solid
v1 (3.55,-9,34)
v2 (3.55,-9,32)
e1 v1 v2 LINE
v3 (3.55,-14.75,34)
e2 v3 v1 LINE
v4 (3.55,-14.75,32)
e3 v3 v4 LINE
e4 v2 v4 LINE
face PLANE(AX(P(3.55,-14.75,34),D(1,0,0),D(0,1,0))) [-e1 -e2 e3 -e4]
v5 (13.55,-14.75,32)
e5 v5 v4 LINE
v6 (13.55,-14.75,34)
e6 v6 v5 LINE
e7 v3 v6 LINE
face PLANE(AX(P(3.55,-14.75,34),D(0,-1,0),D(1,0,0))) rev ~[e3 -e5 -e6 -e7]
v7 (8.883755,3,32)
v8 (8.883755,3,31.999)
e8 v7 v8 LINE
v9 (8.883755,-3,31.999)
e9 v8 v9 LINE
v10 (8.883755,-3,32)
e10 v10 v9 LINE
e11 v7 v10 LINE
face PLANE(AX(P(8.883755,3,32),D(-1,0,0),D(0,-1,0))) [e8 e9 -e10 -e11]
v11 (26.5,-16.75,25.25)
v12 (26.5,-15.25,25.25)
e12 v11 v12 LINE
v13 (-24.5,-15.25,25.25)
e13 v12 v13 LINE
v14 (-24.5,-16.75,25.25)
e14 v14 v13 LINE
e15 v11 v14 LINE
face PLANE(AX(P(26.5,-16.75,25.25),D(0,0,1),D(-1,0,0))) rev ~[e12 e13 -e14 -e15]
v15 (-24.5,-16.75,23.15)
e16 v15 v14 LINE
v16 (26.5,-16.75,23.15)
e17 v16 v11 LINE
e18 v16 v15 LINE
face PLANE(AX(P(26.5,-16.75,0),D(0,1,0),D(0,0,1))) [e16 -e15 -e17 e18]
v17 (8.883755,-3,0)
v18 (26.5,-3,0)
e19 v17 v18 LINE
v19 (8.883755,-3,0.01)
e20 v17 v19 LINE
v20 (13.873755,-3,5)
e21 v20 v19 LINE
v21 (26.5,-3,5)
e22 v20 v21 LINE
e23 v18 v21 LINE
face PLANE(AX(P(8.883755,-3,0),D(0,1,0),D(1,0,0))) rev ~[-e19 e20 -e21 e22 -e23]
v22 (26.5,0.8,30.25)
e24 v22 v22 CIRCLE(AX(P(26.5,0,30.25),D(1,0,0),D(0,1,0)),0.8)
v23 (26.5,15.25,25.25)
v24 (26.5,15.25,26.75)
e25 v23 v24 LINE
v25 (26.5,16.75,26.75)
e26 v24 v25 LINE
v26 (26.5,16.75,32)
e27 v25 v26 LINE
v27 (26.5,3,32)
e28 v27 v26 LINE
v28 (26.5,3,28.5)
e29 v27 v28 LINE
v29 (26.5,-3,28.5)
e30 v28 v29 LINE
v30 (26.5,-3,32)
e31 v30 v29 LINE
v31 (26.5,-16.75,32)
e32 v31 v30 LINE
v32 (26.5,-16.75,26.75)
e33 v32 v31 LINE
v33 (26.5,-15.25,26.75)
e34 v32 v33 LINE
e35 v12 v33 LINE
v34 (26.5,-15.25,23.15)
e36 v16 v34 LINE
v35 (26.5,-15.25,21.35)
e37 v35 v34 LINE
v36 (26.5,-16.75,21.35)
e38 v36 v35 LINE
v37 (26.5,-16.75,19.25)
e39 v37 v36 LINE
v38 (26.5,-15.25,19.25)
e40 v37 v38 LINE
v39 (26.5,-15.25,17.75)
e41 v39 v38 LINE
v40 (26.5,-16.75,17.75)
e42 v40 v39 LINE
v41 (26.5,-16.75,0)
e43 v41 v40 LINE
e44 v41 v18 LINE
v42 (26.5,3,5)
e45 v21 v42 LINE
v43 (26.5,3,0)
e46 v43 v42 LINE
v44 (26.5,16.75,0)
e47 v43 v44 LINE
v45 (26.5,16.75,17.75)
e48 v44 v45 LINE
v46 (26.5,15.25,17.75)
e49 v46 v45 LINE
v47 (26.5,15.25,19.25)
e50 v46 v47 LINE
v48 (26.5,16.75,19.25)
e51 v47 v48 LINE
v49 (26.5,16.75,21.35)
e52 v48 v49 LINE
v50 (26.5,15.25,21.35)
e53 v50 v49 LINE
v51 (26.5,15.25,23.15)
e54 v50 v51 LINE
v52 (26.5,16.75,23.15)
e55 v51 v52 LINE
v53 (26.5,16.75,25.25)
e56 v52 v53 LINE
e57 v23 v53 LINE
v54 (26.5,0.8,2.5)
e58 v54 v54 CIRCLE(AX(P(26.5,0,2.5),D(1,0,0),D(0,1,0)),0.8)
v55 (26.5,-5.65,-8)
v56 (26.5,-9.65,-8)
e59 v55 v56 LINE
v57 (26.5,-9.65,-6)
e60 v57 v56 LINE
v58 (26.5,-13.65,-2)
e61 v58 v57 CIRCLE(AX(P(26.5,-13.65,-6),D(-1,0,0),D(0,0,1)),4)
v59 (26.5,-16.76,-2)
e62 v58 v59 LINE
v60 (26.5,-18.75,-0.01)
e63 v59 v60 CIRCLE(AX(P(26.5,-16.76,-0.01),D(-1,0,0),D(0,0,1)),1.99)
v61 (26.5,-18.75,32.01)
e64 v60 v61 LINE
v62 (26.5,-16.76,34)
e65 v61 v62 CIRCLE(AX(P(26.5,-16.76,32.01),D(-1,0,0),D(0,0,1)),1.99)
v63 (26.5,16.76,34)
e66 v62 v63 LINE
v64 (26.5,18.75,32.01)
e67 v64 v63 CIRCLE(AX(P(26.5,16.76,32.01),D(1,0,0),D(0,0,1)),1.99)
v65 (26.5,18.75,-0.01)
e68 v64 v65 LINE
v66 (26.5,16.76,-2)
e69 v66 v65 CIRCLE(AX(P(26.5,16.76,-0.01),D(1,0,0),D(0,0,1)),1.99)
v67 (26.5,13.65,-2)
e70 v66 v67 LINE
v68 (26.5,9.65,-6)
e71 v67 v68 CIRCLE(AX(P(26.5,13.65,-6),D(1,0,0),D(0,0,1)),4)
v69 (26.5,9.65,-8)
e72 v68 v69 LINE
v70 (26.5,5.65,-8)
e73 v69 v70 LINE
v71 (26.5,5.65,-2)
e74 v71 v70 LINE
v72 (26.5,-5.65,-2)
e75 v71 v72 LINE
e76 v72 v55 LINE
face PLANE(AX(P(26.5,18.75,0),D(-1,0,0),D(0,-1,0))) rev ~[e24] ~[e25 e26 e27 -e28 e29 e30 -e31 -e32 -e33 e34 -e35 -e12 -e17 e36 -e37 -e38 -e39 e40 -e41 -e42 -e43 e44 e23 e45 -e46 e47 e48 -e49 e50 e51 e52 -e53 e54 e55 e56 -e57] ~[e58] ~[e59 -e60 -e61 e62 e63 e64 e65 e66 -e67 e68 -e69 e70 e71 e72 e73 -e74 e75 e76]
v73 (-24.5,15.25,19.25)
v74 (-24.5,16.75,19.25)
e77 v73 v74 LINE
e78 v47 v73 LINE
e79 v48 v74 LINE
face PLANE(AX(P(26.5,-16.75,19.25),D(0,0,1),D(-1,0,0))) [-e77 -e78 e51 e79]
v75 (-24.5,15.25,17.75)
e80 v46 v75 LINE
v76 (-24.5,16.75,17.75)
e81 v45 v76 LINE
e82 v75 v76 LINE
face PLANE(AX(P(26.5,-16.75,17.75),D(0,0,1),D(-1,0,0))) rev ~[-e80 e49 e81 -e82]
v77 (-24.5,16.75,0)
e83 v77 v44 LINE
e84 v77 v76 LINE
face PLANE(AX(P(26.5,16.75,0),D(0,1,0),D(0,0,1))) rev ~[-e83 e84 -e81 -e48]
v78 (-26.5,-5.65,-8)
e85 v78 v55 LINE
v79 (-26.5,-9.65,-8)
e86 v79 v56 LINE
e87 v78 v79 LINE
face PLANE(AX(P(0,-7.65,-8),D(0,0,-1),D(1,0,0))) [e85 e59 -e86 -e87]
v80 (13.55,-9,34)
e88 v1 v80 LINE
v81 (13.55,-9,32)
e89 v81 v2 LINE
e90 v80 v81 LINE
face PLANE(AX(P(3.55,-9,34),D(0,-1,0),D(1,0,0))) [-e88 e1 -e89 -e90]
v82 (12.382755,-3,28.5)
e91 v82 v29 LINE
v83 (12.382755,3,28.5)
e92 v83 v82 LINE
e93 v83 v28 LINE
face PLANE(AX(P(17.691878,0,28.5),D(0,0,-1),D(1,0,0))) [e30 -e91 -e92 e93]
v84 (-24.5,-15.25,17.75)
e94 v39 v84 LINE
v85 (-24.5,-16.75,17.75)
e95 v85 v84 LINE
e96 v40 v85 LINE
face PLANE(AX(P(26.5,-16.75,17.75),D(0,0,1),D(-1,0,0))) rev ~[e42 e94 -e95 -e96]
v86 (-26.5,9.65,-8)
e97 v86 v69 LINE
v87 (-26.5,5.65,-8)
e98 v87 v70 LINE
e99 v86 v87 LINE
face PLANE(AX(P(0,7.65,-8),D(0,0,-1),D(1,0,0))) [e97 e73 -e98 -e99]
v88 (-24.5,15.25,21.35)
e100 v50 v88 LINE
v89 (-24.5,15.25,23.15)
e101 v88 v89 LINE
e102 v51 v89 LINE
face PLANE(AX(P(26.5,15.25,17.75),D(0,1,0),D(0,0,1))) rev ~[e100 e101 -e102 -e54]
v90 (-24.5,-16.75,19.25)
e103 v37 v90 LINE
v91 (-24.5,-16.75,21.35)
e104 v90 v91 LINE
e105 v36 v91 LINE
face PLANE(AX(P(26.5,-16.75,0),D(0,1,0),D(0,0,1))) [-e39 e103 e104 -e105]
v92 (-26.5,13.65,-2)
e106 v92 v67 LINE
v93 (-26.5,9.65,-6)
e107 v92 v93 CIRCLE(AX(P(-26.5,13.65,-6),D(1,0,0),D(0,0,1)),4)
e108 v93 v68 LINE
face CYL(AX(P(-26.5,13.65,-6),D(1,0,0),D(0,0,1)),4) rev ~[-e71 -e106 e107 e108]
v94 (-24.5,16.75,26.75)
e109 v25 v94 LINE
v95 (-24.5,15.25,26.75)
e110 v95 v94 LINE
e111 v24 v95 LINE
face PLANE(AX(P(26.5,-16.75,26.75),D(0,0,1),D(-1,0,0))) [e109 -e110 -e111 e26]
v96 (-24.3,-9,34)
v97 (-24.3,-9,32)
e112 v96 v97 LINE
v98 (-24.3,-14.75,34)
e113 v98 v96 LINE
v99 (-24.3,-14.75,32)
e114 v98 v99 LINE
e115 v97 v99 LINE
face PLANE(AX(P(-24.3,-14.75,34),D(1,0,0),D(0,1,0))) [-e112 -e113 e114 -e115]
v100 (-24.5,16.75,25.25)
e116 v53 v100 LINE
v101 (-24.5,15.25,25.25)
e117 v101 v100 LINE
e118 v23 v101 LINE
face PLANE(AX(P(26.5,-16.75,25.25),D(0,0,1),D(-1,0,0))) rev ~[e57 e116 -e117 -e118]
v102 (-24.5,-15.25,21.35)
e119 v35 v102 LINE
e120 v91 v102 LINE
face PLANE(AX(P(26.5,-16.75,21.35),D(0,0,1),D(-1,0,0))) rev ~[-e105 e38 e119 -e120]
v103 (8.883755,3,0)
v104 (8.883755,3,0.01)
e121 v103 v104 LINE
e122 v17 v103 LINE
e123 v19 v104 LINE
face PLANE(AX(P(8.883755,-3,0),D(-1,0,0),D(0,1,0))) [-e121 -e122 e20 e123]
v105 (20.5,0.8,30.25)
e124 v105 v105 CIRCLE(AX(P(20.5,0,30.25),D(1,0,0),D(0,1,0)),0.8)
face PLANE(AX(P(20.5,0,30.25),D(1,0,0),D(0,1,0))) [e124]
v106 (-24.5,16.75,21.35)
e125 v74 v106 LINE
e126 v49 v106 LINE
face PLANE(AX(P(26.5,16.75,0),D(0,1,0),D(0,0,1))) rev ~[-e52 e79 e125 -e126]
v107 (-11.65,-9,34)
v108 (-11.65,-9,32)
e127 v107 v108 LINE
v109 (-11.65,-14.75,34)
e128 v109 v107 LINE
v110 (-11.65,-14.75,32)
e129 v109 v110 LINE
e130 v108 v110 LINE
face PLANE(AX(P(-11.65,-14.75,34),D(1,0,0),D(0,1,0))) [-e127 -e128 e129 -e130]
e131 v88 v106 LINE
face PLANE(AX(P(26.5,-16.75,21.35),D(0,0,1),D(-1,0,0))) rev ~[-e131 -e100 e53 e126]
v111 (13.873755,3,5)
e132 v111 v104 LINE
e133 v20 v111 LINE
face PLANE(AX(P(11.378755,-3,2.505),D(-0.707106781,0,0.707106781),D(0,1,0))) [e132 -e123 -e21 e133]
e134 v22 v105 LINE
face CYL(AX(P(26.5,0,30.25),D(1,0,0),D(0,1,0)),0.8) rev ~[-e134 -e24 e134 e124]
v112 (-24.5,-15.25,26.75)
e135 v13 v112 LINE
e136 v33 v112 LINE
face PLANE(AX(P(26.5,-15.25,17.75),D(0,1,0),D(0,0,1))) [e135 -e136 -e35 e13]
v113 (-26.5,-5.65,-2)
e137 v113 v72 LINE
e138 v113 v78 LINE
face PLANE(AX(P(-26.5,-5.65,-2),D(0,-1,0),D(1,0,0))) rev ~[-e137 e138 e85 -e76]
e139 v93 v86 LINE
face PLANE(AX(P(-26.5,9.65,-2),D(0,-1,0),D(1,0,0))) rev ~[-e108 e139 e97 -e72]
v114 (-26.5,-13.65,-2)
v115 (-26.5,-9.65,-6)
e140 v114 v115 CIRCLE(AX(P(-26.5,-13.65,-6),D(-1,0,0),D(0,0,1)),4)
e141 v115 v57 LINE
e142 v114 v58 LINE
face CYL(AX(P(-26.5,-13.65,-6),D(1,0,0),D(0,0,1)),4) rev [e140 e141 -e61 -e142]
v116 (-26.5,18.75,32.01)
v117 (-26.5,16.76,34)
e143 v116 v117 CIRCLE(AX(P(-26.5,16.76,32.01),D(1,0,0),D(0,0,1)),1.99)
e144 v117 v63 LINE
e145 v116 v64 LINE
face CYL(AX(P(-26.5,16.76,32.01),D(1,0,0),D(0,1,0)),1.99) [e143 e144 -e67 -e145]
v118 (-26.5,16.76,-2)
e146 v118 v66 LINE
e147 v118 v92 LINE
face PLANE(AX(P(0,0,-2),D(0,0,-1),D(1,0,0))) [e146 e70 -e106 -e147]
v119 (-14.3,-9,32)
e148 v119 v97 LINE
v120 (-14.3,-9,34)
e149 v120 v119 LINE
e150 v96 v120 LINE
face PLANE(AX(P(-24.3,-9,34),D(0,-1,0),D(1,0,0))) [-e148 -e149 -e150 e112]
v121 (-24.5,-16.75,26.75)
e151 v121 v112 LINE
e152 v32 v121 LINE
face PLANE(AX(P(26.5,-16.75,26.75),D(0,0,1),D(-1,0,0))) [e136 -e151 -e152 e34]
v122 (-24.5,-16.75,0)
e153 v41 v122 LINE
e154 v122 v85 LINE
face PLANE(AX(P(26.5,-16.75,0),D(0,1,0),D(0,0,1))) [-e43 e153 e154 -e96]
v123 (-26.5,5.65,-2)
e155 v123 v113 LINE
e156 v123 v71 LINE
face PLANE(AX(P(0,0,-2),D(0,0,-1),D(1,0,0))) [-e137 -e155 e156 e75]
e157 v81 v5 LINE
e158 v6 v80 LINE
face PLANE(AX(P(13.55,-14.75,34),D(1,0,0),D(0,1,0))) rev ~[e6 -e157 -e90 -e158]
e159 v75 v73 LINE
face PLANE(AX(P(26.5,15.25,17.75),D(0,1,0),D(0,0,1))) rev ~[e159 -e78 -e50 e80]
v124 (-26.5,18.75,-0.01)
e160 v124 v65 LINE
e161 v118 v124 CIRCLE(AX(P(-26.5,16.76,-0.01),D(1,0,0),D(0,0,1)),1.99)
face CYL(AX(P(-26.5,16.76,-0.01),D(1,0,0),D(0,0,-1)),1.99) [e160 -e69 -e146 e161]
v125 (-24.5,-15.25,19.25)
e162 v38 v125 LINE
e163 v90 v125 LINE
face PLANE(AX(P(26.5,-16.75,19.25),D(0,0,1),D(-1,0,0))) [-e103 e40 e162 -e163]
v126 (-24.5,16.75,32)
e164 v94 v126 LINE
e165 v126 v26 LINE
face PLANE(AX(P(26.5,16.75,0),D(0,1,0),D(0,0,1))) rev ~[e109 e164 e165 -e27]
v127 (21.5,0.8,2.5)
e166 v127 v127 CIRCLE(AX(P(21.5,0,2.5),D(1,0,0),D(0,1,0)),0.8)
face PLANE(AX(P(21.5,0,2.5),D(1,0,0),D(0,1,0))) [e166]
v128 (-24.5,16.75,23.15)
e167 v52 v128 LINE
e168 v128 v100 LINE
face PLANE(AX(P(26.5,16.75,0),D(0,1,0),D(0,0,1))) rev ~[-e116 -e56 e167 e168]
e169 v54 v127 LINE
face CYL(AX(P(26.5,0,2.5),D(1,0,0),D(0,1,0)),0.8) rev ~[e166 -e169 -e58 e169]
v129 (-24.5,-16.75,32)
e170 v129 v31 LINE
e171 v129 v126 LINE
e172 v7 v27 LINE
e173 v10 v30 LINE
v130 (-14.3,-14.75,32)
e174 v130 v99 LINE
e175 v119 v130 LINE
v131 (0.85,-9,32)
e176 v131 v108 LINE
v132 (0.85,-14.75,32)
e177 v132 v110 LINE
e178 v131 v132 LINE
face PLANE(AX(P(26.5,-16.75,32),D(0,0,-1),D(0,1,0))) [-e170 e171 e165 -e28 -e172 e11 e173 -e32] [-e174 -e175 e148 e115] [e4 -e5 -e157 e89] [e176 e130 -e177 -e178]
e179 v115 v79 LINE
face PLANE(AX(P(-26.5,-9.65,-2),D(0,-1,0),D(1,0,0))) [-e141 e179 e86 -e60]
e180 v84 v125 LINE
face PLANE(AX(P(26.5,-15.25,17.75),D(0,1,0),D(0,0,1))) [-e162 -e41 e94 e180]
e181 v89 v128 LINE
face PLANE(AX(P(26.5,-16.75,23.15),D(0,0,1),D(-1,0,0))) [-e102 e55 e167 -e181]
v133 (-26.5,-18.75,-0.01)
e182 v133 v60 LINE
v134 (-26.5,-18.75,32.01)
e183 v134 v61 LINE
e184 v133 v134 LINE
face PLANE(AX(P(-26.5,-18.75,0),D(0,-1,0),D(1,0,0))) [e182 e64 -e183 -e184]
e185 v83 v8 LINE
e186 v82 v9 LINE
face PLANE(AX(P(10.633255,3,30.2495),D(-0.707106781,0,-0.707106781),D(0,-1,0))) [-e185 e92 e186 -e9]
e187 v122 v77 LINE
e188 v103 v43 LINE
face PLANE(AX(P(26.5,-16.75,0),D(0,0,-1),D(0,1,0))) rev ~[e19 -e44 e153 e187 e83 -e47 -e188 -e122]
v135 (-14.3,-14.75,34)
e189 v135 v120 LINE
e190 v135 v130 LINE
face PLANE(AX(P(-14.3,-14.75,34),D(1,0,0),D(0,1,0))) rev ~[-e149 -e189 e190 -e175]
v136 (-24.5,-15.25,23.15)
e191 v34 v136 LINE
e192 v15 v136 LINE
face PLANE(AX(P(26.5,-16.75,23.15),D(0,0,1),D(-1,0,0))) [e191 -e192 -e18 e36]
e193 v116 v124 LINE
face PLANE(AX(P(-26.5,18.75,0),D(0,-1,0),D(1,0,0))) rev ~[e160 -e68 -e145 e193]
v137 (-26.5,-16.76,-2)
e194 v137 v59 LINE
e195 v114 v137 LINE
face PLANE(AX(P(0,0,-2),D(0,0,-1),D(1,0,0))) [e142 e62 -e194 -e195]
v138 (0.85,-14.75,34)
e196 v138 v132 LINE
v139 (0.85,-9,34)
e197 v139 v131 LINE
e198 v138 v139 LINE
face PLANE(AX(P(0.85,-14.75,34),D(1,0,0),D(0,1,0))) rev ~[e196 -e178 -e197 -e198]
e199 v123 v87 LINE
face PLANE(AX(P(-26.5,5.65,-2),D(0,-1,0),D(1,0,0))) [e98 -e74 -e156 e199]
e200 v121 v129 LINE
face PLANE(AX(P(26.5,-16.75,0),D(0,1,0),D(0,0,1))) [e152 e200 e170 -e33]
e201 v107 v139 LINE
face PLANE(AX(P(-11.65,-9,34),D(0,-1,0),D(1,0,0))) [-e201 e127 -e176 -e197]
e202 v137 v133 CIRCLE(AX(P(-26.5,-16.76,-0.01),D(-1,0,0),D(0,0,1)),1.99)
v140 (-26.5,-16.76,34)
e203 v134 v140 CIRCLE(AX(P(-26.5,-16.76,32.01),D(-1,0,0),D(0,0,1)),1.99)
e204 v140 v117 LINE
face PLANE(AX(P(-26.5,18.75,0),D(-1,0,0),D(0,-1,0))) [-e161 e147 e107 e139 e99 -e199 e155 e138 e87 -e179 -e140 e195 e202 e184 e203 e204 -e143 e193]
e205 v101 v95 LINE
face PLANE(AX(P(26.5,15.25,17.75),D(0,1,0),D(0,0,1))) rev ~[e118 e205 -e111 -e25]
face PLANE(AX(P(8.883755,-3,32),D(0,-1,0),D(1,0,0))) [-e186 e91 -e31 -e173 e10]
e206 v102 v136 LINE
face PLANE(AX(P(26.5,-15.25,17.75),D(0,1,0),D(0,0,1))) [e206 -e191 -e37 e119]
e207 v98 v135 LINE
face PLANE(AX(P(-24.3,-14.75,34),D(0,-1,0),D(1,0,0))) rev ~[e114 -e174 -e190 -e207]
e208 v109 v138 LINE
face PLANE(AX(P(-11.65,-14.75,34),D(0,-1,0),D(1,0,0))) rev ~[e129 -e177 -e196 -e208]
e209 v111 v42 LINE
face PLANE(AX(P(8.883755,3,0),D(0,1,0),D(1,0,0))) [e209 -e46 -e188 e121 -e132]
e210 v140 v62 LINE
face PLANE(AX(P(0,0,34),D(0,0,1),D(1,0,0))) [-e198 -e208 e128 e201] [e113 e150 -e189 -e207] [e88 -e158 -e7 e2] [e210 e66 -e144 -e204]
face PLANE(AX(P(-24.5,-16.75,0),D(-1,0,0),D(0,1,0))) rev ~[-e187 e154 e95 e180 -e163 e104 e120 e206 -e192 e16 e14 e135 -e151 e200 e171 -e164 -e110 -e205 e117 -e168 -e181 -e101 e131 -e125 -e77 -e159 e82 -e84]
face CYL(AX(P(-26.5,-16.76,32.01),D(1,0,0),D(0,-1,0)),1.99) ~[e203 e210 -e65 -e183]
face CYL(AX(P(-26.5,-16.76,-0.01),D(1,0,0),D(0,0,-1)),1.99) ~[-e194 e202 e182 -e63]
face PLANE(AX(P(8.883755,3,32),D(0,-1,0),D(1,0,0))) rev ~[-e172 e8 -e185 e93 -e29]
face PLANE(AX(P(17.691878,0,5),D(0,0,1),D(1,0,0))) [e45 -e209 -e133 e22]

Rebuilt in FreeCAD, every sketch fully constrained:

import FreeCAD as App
import Part
import Sketcher
from FreeCAD import Vector
Q = App.Units.Quantity


def edges_at(feature, points):
    """Names of the edges that pass closest to the given points."""
    edges = feature.Shape.Edges
    near = lambda p: min(range(len(edges)), key=lambda i: edges[i].distToShape(Part.Vertex(*p))[0])
    return sorted({f"Edge{near(p) + 1}" for p in points})

doc = App.newDocument("Part")
params = doc.addObject("Spreadsheet::Sheet", "Params")
for row, (alias, value) in enumerate([
    ("sketch1_width", "53 mm"),
    ("sketch1_width2", "49 mm"),
    ("sketch1_height", "37.5 mm"),
    ("sketch1_height2", "33.5 mm"),
    ("pad1_length", "32 mm"),
    ("sketch2_width", "53 mm"),
    ("sketch2_height", "37.5 mm"),
    ("pad2_length", "2 mm"),
    ("sketch3_width", "53 mm"),
    ("sketch3_height", "37.5 mm"),
    ("pad3_length", "2 mm"),
    ("sketch4_height", "32 mm"),
    ("sketch4_width", "33.5 mm"),
    ("pocket1_length", "2 mm"),
    ("sketch5_width", "10 mm"),
    ("sketch5_width2", "12.5 mm"),
    ("sketch5_height", "5.75 mm"),
    ("pocket2_length", "5 mm"),
    ("sketch6_width", "51 mm"),
    ("sketch6_height", "1.8 mm"),
    ("sketch6_height2", "1.5 mm"),
    ("pad4_length", "33.5 mm"),
    ("sketch7_height", "9 mm"),
    ("sketch7_width", "30.5 mm"),
    ("pocket3_length", "51 mm"),
    ("sketch8_height", "6 mm"),
    ("pad5_length", "5 mm"),
    ("sketch9_diameter", "1.6 mm"),
    ("pocket4_length", "5 mm"),
    ("sketch10_height", "6 mm"),
    ("pad6_length", "3.5 mm"),
    ("sketch11_diameter", "1.6 mm"),
    ("pocket5_length", "6 mm"),
    ("chamfer_size", "3.499 mm"),
    ("chamfer2_size", "4.99 mm"),
    ("fillet_radius", "1.99 mm"),
    ("sketch12_width", "53 mm"),
    ("sketch12_height", "4 mm"),
    ("pad7_length", "6 mm"),
    ("fillet2_radius", "4 mm"),
], start=1):
    params.set(f"A{row}", alias)
    params.set(f"B{row}", "=" + value)
    params.setAlias(f"B{row}", alias)

body = doc.addObject("PartDesign::Body", "Body")

# Sketch on XY plane
sketch1 = body.newObject("Sketcher::SketchObject", "Sketch")
sketch1.AttachmentSupport = (doc.getObject("XY_Plane"), [""])
sketch1.MapMode = "FlatFace"
sketch1.addGeometry([
    Part.LineSegment(Vector(-26, 19, 0), Vector(-26, -19, 0)),  # 0
    Part.LineSegment(Vector(-26, -19, 0), Vector(26, -19, 0)),  # 1
    Part.LineSegment(Vector(26, -19, 0), Vector(26, 19, 0)),  # 2
    Part.LineSegment(Vector(26, 19, 0), Vector(-26, 19, 0)),  # 3
    Part.LineSegment(Vector(24, -17, 0), Vector(-24, -17, 0)),  # 4
    Part.LineSegment(Vector(-24, -17, 0), Vector(-24, 17, 0)),  # 5
    Part.LineSegment(Vector(-24, 17, 0), Vector(24, 17, 0)),  # 6
    Part.LineSegment(Vector(24, 17, 0), Vector(24, -17, 0)),  # 7
], False)
sketch1.addConstraint([
    Sketcher.Constraint("Coincident", 0, 2, 1, 1),
    Sketcher.Constraint("Coincident", 1, 2, 2, 1),
    Sketcher.Constraint("Coincident", 2, 2, 3, 1),
    Sketcher.Constraint("Coincident", 3, 2, 0, 1),
    Sketcher.Constraint("Coincident", 4, 2, 5, 1),
    Sketcher.Constraint("Coincident", 5, 2, 6, 1),
    Sketcher.Constraint("Coincident", 6, 2, 7, 1),
    Sketcher.Constraint("Coincident", 7, 2, 4, 1),
    Sketcher.Constraint("Vertical", 0),
    Sketcher.Constraint("Horizontal", 1),
    Sketcher.Constraint("Vertical", 2),
    Sketcher.Constraint("Horizontal", 3),
    Sketcher.Constraint("Horizontal", 4),
    Sketcher.Constraint("Vertical", 5),
    Sketcher.Constraint("Horizontal", 6),
    Sketcher.Constraint("Vertical", 7),
    Sketcher.Constraint("Symmetric", 0, 2, 2, 2, -1, 1),
    Sketcher.Constraint("Symmetric", 4, 2, 6, 2, -1, 1),
    Sketcher.Constraint("DistanceX", 1, 1, 1, 2, Q("53 mm")),
    Sketcher.Constraint("DistanceX", 4, 2, 4, 1, Q("49 mm")),
    Sketcher.Constraint("DistanceY", 0, 2, 0, 1, Q("37.5 mm")),
    Sketcher.Constraint("DistanceY", 5, 1, 5, 2, Q("33.5 mm")),
])
sketch1.setExpression("Constraints[18]", "Params.sketch1_width")
sketch1.setExpression("Constraints[19]", "Params.sketch1_width2")
sketch1.setExpression("Constraints[20]", "Params.sketch1_height")
sketch1.setExpression("Constraints[21]", "Params.sketch1_height2")
pad1 = body.newObject("PartDesign::Pad", "Pad")
pad1.Profile = sketch1
pad1.setExpression("Length", "Params.pad1_length")

# Sketch on XY plane
sketch2 = body.newObject("Sketcher::SketchObject", "Sketch001")
sketch2.AttachmentSupport = (doc.getObject("XY_Plane"), [""])
sketch2.MapMode = "FlatFace"
sketch2.AttachmentOffset = App.Placement(Vector(0, 0, 32), App.Rotation())
sketch2.addGeometry([
    Part.LineSegment(Vector(-26, 19, 0), Vector(-26, -19, 0)),
    Part.LineSegment(Vector(-26, -19, 0), Vector(26, -19, 0)),
    Part.LineSegment(Vector(26, -19, 0), Vector(26, 19, 0)),
    Part.LineSegment(Vector(26, 19, 0), Vector(-26, 19, 0)),
], False)
sketch2.addConstraint([
    Sketcher.Constraint("Coincident", 0, 2, 1, 1),
    Sketcher.Constraint("Coincident", 1, 2, 2, 1),
    Sketcher.Constraint("Coincident", 2, 2, 3, 1),
    Sketcher.Constraint("Coincident", 3, 2, 0, 1),
    Sketcher.Constraint("Vertical", 0),
    Sketcher.Constraint("Horizontal", 1),
    Sketcher.Constraint("Vertical", 2),
    Sketcher.Constraint("Horizontal", 3),
    Sketcher.Constraint("Symmetric", 0, 2, 2, 2, -1, 1),
    Sketcher.Constraint("DistanceX", 1, 1, 1, 2, Q("53 mm")),
    Sketcher.Constraint("DistanceY", 0, 2, 0, 1, Q("37.5 mm")),
])
sketch2.setExpression("Constraints[9]", "Params.sketch2_width")
sketch2.setExpression("Constraints[10]", "Params.sketch2_height")
pad2 = body.newObject("PartDesign::Pad", "Pad001")
pad2.Profile = sketch2
pad2.setExpression("Length", "Params.pad2_length")

# Sketch on XY plane
sketch3 = body.newObject("Sketcher::SketchObject", "Sketch002")
sketch3.AttachmentSupport = (doc.getObject("XY_Plane"), [""])
sketch3.MapMode = "FlatFace"
sketch3.addGeometry([
    Part.LineSegment(Vector(-26, -19, 0), Vector(-26, 19, 0)),
    Part.LineSegment(Vector(-26, 19, 0), Vector(26, 19, 0)),
    Part.LineSegment(Vector(26, 19, 0), Vector(26, -19, 0)),
    Part.LineSegment(Vector(26, -19, 0), Vector(-26, -19, 0)),
], False)
sketch3.addConstraint([
    Sketcher.Constraint("Coincident", 0, 2, 1, 1),
    Sketcher.Constraint("Coincident", 1, 2, 2, 1),
    Sketcher.Constraint("Coincident", 2, 2, 3, 1),
    Sketcher.Constraint("Coincident", 3, 2, 0, 1),
    Sketcher.Constraint("Vertical", 0),
    Sketcher.Constraint("Horizontal", 1),
    Sketcher.Constraint("Vertical", 2),
    Sketcher.Constraint("Horizontal", 3),
    Sketcher.Constraint("Symmetric", 0, 2, 2, 2, -1, 1),
    Sketcher.Constraint("DistanceX", 1, 1, 1, 2, Q("53 mm")),
    Sketcher.Constraint("DistanceY", 0, 1, 0, 2, Q("37.5 mm")),
])
sketch3.setExpression("Constraints[9]", "Params.sketch3_width")
sketch3.setExpression("Constraints[10]", "Params.sketch3_height")
pad3 = body.newObject("PartDesign::Pad", "Pad002")
pad3.Profile = sketch3
pad3.setExpression("Length", "Params.pad3_length")
pad3.Reversed = True

# Sketch on YZ plane
sketch4 = body.newObject("Sketcher::SketchObject", "Sketch003")
sketch4.AttachmentSupport = (doc.getObject("YZ_Plane"), [""])
sketch4.MapMode = "FlatFace"
sketch4.AttachmentOffset = App.Placement(Vector(0, 0, 26.5), App.Rotation())
sketch4.addGeometry([
    Part.LineSegment(Vector(-17, 32, 0), Vector(-17, 0, 0)),
    Part.LineSegment(Vector(-17, 0, 0), Vector(17, 0, 0)),
    Part.LineSegment(Vector(17, 0, 0), Vector(17, 32, 0)),
    Part.LineSegment(Vector(17, 32, 0), Vector(-17, 32, 0)),
], False)
sketch4.addConstraint([
    Sketcher.Constraint("Coincident", 0, 2, 1, 1),
    Sketcher.Constraint("Coincident", 1, 2, 2, 1),
    Sketcher.Constraint("Coincident", 2, 2, 3, 1),
    Sketcher.Constraint("Coincident", 3, 2, 0, 1),
    Sketcher.Constraint("Vertical", 0),
    Sketcher.Constraint("Horizontal", 1),
    Sketcher.Constraint("Vertical", 2),
    Sketcher.Constraint("Horizontal", 3),
    Sketcher.Constraint("Symmetric", 0, 2, 1, 2, -1, 1),
    Sketcher.Constraint("DistanceY", 0, 2, 0, 1, Q("32 mm")),
    Sketcher.Constraint("DistanceX", 1, 1, 1, 2, Q("33.5 mm")),
])
sketch4.setExpression("Constraints[9]", "Params.sketch4_height")
sketch4.setExpression("Constraints[10]", "Params.sketch4_width")
pocket1 = body.newObject("PartDesign::Pocket", "Pocket")
pocket1.Profile = sketch4
pocket1.setExpression("Length", "Params.pocket1_length")

# Sketch on XY plane
sketch5 = body.newObject("Sketcher::SketchObject", "Sketch004")
sketch5.AttachmentSupport = (doc.getObject("XY_Plane"), [""])
sketch5.MapMode = "FlatFace"
sketch5.AttachmentOffset = App.Placement(Vector(0, 0, 34), App.Rotation())
sketch5.addGeometry([
    Part.LineSegment(Vector(-24, -9, 0), Vector(-24, -15, 0)),  # 0
    Part.LineSegment(Vector(-24, -15, 0), Vector(-14, -15, 0)),  # 1
    Part.LineSegment(Vector(-14, -15, 0), Vector(-14, -9, 0)),  # 2
    Part.LineSegment(Vector(-14, -9, 0), Vector(-24, -9, 0)),  # 3
    Part.LineSegment(Vector(-12, -9, 0), Vector(-12, -15, 0)),  # 4
    Part.LineSegment(Vector(-12, -15, 0), Vector(1, -15, 0)),  # 5
    Part.LineSegment(Vector(1, -15, 0), Vector(1, -9, 0)),  # 6
    Part.LineSegment(Vector(1, -9, 0), Vector(-12, -9, 0)),  # 7
    Part.LineSegment(Vector(4, -9, 0), Vector(4, -15, 0)),  # 8
    Part.LineSegment(Vector(4, -15, 0), Vector(14, -15, 0)),  # 9
    Part.LineSegment(Vector(14, -15, 0), Vector(14, -9, 0)),  # 10
    Part.LineSegment(Vector(14, -9, 0), Vector(4, -9, 0)),  # 11
], False)
sketch5.addConstraint([
    Sketcher.Constraint("Coincident", 0, 2, 1, 1),
    Sketcher.Constraint("Coincident", 1, 2, 2, 1),
    Sketcher.Constraint("Coincident", 2, 2, 3, 1),
    Sketcher.Constraint("Coincident", 3, 2, 0, 1),
    Sketcher.Constraint("Coincident", 4, 2, 5, 1),
    Sketcher.Constraint("Coincident", 5, 2, 6, 1),
    Sketcher.Constraint("Coincident", 6, 2, 7, 1),
    Sketcher.Constraint("Coincident", 7, 2, 4, 1),
    Sketcher.Constraint("Coincident", 8, 2, 9, 1),
    Sketcher.Constraint("Coincident", 9, 2, 10, 1),
    Sketcher.Constraint("Coincident", 10, 2, 11, 1),
    Sketcher.Constraint("Coincident", 11, 2, 8, 1),
    Sketcher.Constraint("Vertical", 0),
    Sketcher.Constraint("Horizontal", 1),
    Sketcher.Constraint("Vertical", 2),
    Sketcher.Constraint("Horizontal", 3),
    Sketcher.Constraint("Vertical", 4),
    Sketcher.Constraint("Horizontal", 5),
    Sketcher.Constraint("Vertical", 6),
    Sketcher.Constraint("Horizontal", 7),
    Sketcher.Constraint("Vertical", 8),
    Sketcher.Constraint("Horizontal", 9),
    Sketcher.Constraint("Vertical", 10),
    Sketcher.Constraint("Horizontal", 11),
    Sketcher.Constraint("Horizontal", 1, 2, 4, 2),
    Sketcher.Constraint("Horizontal", 3, 2, 6, 2),
    Sketcher.Constraint("Horizontal", 5, 2, 8, 2),
    Sketcher.Constraint("Horizontal", 7, 2, 10, 2),
    Sketcher.Constraint("Equal", 3, 9),
    Sketcher.Constraint("DistanceX", 1, 1, 1, 2, Q("10 mm")),
    Sketcher.Constraint("DistanceX", 5, 1, 5, 2, Q("12.5 mm")),
    Sketcher.Constraint("DistanceY", 2, 2, -1, 1, Q("9 mm")),
    Sketcher.Constraint("DistanceY", 0, 2, 0, 1, Q("5.75 mm")),
    Sketcher.Constraint("DistanceX", 0, 2, -1, 1, Q("24.3 mm")),
    Sketcher.Constraint("DistanceX", 5, 2, 8, 2, Q("2.7 mm")),
    Sketcher.Constraint("DistanceX", 4, 2, -1, 1, Q("11.65 mm")),
])
sketch5.setExpression("Constraints[29]", "Params.sketch5_width")
sketch5.setExpression("Constraints[30]", "Params.sketch5_width2")
sketch5.setExpression("Constraints[32]", "Params.sketch5_height")
pocket2 = body.newObject("PartDesign::Pocket", "Pocket001")
pocket2.Profile = sketch5
pocket2.setExpression("Length", "Params.pocket2_length")

# Sketch on XZ plane
sketch6 = body.newObject("Sketcher::SketchObject", "Sketch005")
sketch6.AttachmentSupport = (doc.getObject("XZ_Plane"), [""])
sketch6.MapMode = "FlatFace"
sketch6.AttachmentOffset = App.Placement(Vector(0, 0, 16.75), App.Rotation())
sketch6.addGeometry([
    Part.LineSegment(Vector(26.5, 23.1, 0), Vector(26.5, 21.4, 0)),  # 0
    Part.LineSegment(Vector(26.5, 21.4, 0), Vector(-24.5, 21.4, 0)),  # 1
    Part.LineSegment(Vector(-24.5, 21.4, 0), Vector(-24.5, 23.1, 0)),  # 2
    Part.LineSegment(Vector(-24.5, 23.1, 0), Vector(26.5, 23.1, 0)),  # 3
    Part.LineSegment(Vector(26.5, 26.8, 0), Vector(26.5, 25.2, 0)),  # 4
    Part.LineSegment(Vector(26.5, 25.2, 0), Vector(-24.5, 25.2, 0)),  # 5
    Part.LineSegment(Vector(-24.5, 25.2, 0), Vector(-24.5, 26.8, 0)),  # 6
    Part.LineSegment(Vector(-24.5, 26.8, 0), Vector(26.5, 26.8, 0)),  # 7
    Part.LineSegment(Vector(26.5, 19.2, 0), Vector(26.5, 17.8, 0)),  # 8
    Part.LineSegment(Vector(26.5, 17.8, 0), Vector(-24.5, 17.8, 0)),  # 9
    Part.LineSegment(Vector(-24.5, 17.8, 0), Vector(-24.5, 19.2, 0)),  # 10
    Part.LineSegment(Vector(-24.5, 19.2, 0), Vector(26.5, 19.2, 0)),  # 11
], False)
sketch6.addConstraint([
    Sketcher.Constraint("Coincident", 0, 2, 1, 1),
    Sketcher.Constraint("Coincident", 1, 2, 2, 1),
    Sketcher.Constraint("Coincident", 2, 2, 3, 1),
    Sketcher.Constraint("Coincident", 3, 2, 0, 1),
    Sketcher.Constraint("Coincident", 4, 2, 5, 1),
    Sketcher.Constraint("Coincident", 5, 2, 6, 1),
    Sketcher.Constraint("Coincident", 6, 2, 7, 1),
    Sketcher.Constraint("Coincident", 7, 2, 4, 1),
    Sketcher.Constraint("Coincident", 8, 2, 9, 1),
    Sketcher.Constraint("Coincident", 9, 2, 10, 1),
    Sketcher.Constraint("Coincident", 10, 2, 11, 1),
    Sketcher.Constraint("Coincident", 11, 2, 8, 1),
    Sketcher.Constraint("Vertical", 0),
    Sketcher.Constraint("Horizontal", 1),
    Sketcher.Constraint("Vertical", 2),
    Sketcher.Constraint("Horizontal", 3),
    Sketcher.Constraint("Vertical", 4),
    Sketcher.Constraint("Horizontal", 5),
    Sketcher.Constraint("Vertical", 6),
    Sketcher.Constraint("Horizontal", 7),
    Sketcher.Constraint("Vertical", 8),
    Sketcher.Constraint("Horizontal", 9),
    Sketcher.Constraint("Vertical", 10),
    Sketcher.Constraint("Horizontal", 11),
    Sketcher.Constraint("Vertical", 3, 2, 4, 2),
    Sketcher.Constraint("Vertical", 2, 2, 5, 2),
    Sketcher.Constraint("Vertical", 7, 2, 8, 2),
    Sketcher.Constraint("Vertical", 6, 2, 9, 2),
    Sketcher.Constraint("Equal", 6, 8),
    Sketcher.Constraint("DistanceX", 1, 2, 1, 1, Q("51 mm")),
    Sketcher.Constraint("DistanceY", 0, 2, 0, 1, Q("1.8 mm")),
    Sketcher.Constraint("DistanceY", 4, 2, 4, 1, Q("1.5 mm")),
    Sketcher.Constraint("DistanceY", 8, 2, 7, 2, Q("9 mm")),
    Sketcher.Constraint("DistanceX", -1, 1, 0, 2, Q("26.5 mm")),
    Sketcher.Constraint("DistanceY", 3, 2, 4, 2, Q("2.1 mm")),
    Sketcher.Constraint("DistanceY", -1, 1, 0, 2, Q("21.35 mm")),
])
sketch6.setExpression("Constraints[29]", "Params.sketch6_width")
sketch6.setExpression("Constraints[30]", "Params.sketch6_height")
sketch6.setExpression("Constraints[31]", "Params.sketch6_height2")
pad4 = body.newObject("PartDesign::Pad", "Pad003")
pad4.Profile = sketch6
pad4.setExpression("Length", "Params.pad4_length")
pad4.Reversed = True

# Sketch on YZ plane
sketch7 = body.newObject("Sketcher::SketchObject", "Sketch006")
sketch7.AttachmentSupport = (doc.getObject("YZ_Plane"), [""])
sketch7.MapMode = "FlatFace"
sketch7.AttachmentOffset = App.Placement(Vector(0, 0, 26.5), App.Rotation())
sketch7.addGeometry([
    Part.LineSegment(Vector(-15, 27, 0), Vector(-15, 18, 0)),
    Part.LineSegment(Vector(-15, 18, 0), Vector(15, 18, 0)),
    Part.LineSegment(Vector(15, 18, 0), Vector(15, 27, 0)),
    Part.LineSegment(Vector(15, 27, 0), Vector(-15, 27, 0)),
], False)
sketch7.addConstraint([
    Sketcher.Constraint("Coincident", 0, 2, 1, 1),
    Sketcher.Constraint("Coincident", 1, 2, 2, 1),
    Sketcher.Constraint("Coincident", 2, 2, 3, 1),
    Sketcher.Constraint("Coincident", 3, 2, 0, 1),
    Sketcher.Constraint("Vertical", 0),
    Sketcher.Constraint("Horizontal", 1),
    Sketcher.Constraint("Vertical", 2),
    Sketcher.Constraint("Horizontal", 3),
    Sketcher.Constraint("DistanceY", 0, 2, 0, 1, Q("9 mm")),
    Sketcher.Constraint("DistanceX", 1, 1, 1, 2, Q("30.5 mm")),
    Sketcher.Constraint("DistanceX", 0, 2, -1, 1, Q("15.25 mm")),
    Sketcher.Constraint("DistanceY", -1, 1, 0, 2, Q("17.75 mm")),
])
sketch7.setExpression("Constraints[8]", "Params.sketch7_height")
sketch7.setExpression("Constraints[9]", "Params.sketch7_width")
pocket3 = body.newObject("PartDesign::Pocket", "Pocket002")
pocket3.Profile = sketch7
pocket3.setExpression("Length", "Params.pocket3_length")

# Sketch on XY plane
sketch8 = body.newObject("Sketcher::SketchObject", "Sketch007")
sketch8.AttachmentSupport = (doc.getObject("XY_Plane"), [""])
sketch8.MapMode = "FlatFace"
sketch8.addGeometry([
    Part.LineSegment(Vector(9, 3, 0), Vector(9, -3, 0)),
    Part.LineSegment(Vector(9, -3, 0), Vector(26, -3, 0)),
    Part.LineSegment(Vector(26, -3, 0), Vector(26, 3, 0)),
    Part.LineSegment(Vector(26, 3, 0), Vector(9, 3, 0)),
], False)
sketch8.addConstraint([
    Sketcher.Constraint("Coincident", 0, 2, 1, 1),
    Sketcher.Constraint("Coincident", 1, 2, 2, 1),
    Sketcher.Constraint("Coincident", 2, 2, 3, 1),
    Sketcher.Constraint("Coincident", 3, 2, 0, 1),
    Sketcher.Constraint("Vertical", 0),
    Sketcher.Constraint("Horizontal", 1),
    Sketcher.Constraint("Vertical", 2),
    Sketcher.Constraint("Horizontal", 3),
    Sketcher.Constraint("DistanceY", 0, 2, 0, 1, Q("6 mm")),
    Sketcher.Constraint("DistanceY", 0, 2, -1, 1, Q("3 mm")),
    Sketcher.Constraint("DistanceX", -1, 1, 1, 2, Q("26.5 mm")),
    Sketcher.Constraint("DistanceX", 1, 1, 1, 2, Q("17.616245 mm")),
])
sketch8.setExpression("Constraints[8]", "Params.sketch8_height")
pad5 = body.newObject("PartDesign::Pad", "Pad004")
pad5.Profile = sketch8
pad5.setExpression("Length", "Params.pad5_length")

# Sketch on YZ plane
sketch9 = body.newObject("Sketcher::SketchObject", "Sketch008")
sketch9.AttachmentSupport = (doc.getObject("YZ_Plane"), [""])
sketch9.MapMode = "FlatFace"
sketch9.AttachmentOffset = App.Placement(Vector(0, 0, 26.5), App.Rotation())
sketch9.addGeometry(Part.Circle(Vector(0, 2.5, 0), Vector(0, 0, 1), 0.8), False)
sketch9.addConstraint([
    Sketcher.Constraint("PointOnObject", 0, 3, -2),
    Sketcher.Constraint("Diameter", 0, Q("1.6 mm")),
    Sketcher.Constraint("DistanceY", -1, 1, 0, 3, Q("2.5 mm")),
])
sketch9.setExpression("Constraints[1]", "Params.sketch9_diameter")
pocket4 = body.newObject("PartDesign::Pocket", "Pocket003")
pocket4.Profile = sketch9
pocket4.setExpression("Length", "Params.pocket4_length")

# Sketch on XY plane
sketch10 = body.newObject("Sketcher::SketchObject", "Sketch009")
sketch10.AttachmentSupport = (doc.getObject("XY_Plane"), [""])
sketch10.MapMode = "FlatFace"
sketch10.AttachmentOffset = App.Placement(Vector(0, 0, 32), App.Rotation())
sketch10.addGeometry([
    Part.LineSegment(Vector(9, -3, 0), Vector(9, 3, 0)),
    Part.LineSegment(Vector(9, 3, 0), Vector(26, 3, 0)),
    Part.LineSegment(Vector(26, 3, 0), Vector(26, -3, 0)),
    Part.LineSegment(Vector(26, -3, 0), Vector(9, -3, 0)),
], False)
sketch10.addConstraint([
    Sketcher.Constraint("Coincident", 0, 2, 1, 1),
    Sketcher.Constraint("Coincident", 1, 2, 2, 1),
    Sketcher.Constraint("Coincident", 2, 2, 3, 1),
    Sketcher.Constraint("Coincident", 3, 2, 0, 1),
    Sketcher.Constraint("Vertical", 0),
    Sketcher.Constraint("Horizontal", 1),
    Sketcher.Constraint("Vertical", 2),
    Sketcher.Constraint("Horizontal", 3),
    Sketcher.Constraint("DistanceY", 0, 1, 0, 2, Q("6 mm")),
    Sketcher.Constraint("DistanceY", -1, 1, 0, 2, Q("3 mm")),
    Sketcher.Constraint("DistanceX", -1, 1, 1, 2, Q("26.5 mm")),
    Sketcher.Constraint("DistanceX", 1, 1, 1, 2, Q("17.616245 mm")),
])
sketch10.setExpression("Constraints[8]", "Params.sketch10_height")
pad6 = body.newObject("PartDesign::Pad", "Pad005")
pad6.Profile = sketch10
pad6.setExpression("Length", "Params.pad6_length")
pad6.Reversed = True

# Sketch on YZ plane
sketch11 = body.newObject("Sketcher::SketchObject", "Sketch010")
sketch11.AttachmentSupport = (doc.getObject("YZ_Plane"), [""])
sketch11.MapMode = "FlatFace"
sketch11.AttachmentOffset = App.Placement(Vector(0, 0, 26.5), App.Rotation())
sketch11.addGeometry(Part.Circle(Vector(0, 30.2, 0), Vector(0, 0, 1), 0.8), False)
sketch11.addConstraint([
    Sketcher.Constraint("PointOnObject", 0, 3, -2),
    Sketcher.Constraint("Diameter", 0, Q("1.6 mm")),
    Sketcher.Constraint("DistanceY", -1, 1, 0, 3, Q("30.25 mm")),
])
sketch11.setExpression("Constraints[1]", "Params.sketch11_diameter")
pocket5 = body.newObject("PartDesign::Pocket", "Pocket004")
pocket5.Profile = sketch11
pocket5.setExpression("Length", "Params.pocket5_length")
doc.recompute()

chamfer = body.newObject("PartDesign::Chamfer", "Chamfer")
chamfer.Base = (pocket5, edges_at(pocket5, [(8.884, 0, 28.5)]))
chamfer.setExpression("Size", "Params.chamfer_size")
doc.recompute()

chamfer2 = body.newObject("PartDesign::Chamfer", "Chamfer001")
chamfer2.Base = (chamfer, edges_at(chamfer, [(8.884, 0, 5)]))
chamfer2.setExpression("Size", "Params.chamfer2_size")
doc.recompute()

fillet = body.newObject("PartDesign::Fillet", "Fillet")
fillet.Base = (chamfer2, edges_at(chamfer2, [
    (0, -18.75, 34),
    (0, 18.75, 34),
    (0, 18.75, -2),
    (0, -18.75, -2),
]))
fillet.setExpression("Radius", "Params.fillet_radius")

# Sketch on XY plane
sketch12 = body.newObject("Sketcher::SketchObject", "Sketch011")
sketch12.AttachmentSupport = (doc.getObject("XY_Plane"), [""])
sketch12.MapMode = "FlatFace"
sketch12.AttachmentOffset = App.Placement(Vector(0, 0, -2), App.Rotation())
sketch12.addGeometry([
    Part.LineSegment(Vector(-26.5, -9.7, 0), Vector(-26.5, -5.7, 0)),  # 0
    Part.LineSegment(Vector(-26.5, -5.7, 0), Vector(26.5, -5.7, 0)),  # 1
    Part.LineSegment(Vector(26.5, -5.7, 0), Vector(26.5, -9.7, 0)),  # 2
    Part.LineSegment(Vector(26.5, -9.7, 0), Vector(-26.5, -9.7, 0)),  # 3
    Part.LineSegment(Vector(-26.5, 5.7, 0), Vector(-26.5, 9.7, 0)),  # 4
    Part.LineSegment(Vector(-26.5, 9.7, 0), Vector(26.5, 9.7, 0)),  # 5
    Part.LineSegment(Vector(26.5, 9.7, 0), Vector(26.5, 5.7, 0)),  # 6
    Part.LineSegment(Vector(26.5, 5.7, 0), Vector(-26.5, 5.7, 0)),  # 7
], False)
sketch12.addConstraint([
    Sketcher.Constraint("Coincident", 0, 2, 1, 1),
    Sketcher.Constraint("Coincident", 1, 2, 2, 1),
    Sketcher.Constraint("Coincident", 2, 2, 3, 1),
    Sketcher.Constraint("Coincident", 3, 2, 0, 1),
    Sketcher.Constraint("Coincident", 4, 2, 5, 1),
    Sketcher.Constraint("Coincident", 5, 2, 6, 1),
    Sketcher.Constraint("Coincident", 6, 2, 7, 1),
    Sketcher.Constraint("Coincident", 7, 2, 4, 1),
    Sketcher.Constraint("Vertical", 0),
    Sketcher.Constraint("Horizontal", 1),
    Sketcher.Constraint("Vertical", 2),
    Sketcher.Constraint("Horizontal", 3),
    Sketcher.Constraint("Vertical", 4),
    Sketcher.Constraint("Horizontal", 5),
    Sketcher.Constraint("Vertical", 6),
    Sketcher.Constraint("Horizontal", 7),
    Sketcher.Constraint("Symmetric", 2, 2, 4, 2, -1, 1),
    Sketcher.Constraint("Symmetric", 0, 2, 6, 2, -1, 1),
    Sketcher.Constraint("Vertical", 3, 2, 4, 2),
    Sketcher.Constraint("DistanceX", 1, 1, 1, 2, Q("53 mm")),
    Sketcher.Constraint("DistanceY", 0, 1, 0, 2, Q("4 mm")),
    Sketcher.Constraint("DistanceY", 0, 2, 4, 2, Q("15.3 mm")),
])
sketch12.setExpression("Constraints[19]", "Params.sketch12_width")
sketch12.setExpression("Constraints[20]", "Params.sketch12_height")
pad7 = body.newObject("PartDesign::Pad", "Pad006")
pad7.Profile = sketch12
pad7.setExpression("Length", "Params.pad7_length")
pad7.Reversed = True
doc.recompute()

fillet2 = body.newObject("PartDesign::Fillet", "Fillet001")
fillet2.Base = (pad7, edges_at(pad7, [(0, 9.65, -2), (0, -9.65, -2)]))
fillet2.setExpression("Radius", "Params.fillet2_radius")

doc.recompute()
